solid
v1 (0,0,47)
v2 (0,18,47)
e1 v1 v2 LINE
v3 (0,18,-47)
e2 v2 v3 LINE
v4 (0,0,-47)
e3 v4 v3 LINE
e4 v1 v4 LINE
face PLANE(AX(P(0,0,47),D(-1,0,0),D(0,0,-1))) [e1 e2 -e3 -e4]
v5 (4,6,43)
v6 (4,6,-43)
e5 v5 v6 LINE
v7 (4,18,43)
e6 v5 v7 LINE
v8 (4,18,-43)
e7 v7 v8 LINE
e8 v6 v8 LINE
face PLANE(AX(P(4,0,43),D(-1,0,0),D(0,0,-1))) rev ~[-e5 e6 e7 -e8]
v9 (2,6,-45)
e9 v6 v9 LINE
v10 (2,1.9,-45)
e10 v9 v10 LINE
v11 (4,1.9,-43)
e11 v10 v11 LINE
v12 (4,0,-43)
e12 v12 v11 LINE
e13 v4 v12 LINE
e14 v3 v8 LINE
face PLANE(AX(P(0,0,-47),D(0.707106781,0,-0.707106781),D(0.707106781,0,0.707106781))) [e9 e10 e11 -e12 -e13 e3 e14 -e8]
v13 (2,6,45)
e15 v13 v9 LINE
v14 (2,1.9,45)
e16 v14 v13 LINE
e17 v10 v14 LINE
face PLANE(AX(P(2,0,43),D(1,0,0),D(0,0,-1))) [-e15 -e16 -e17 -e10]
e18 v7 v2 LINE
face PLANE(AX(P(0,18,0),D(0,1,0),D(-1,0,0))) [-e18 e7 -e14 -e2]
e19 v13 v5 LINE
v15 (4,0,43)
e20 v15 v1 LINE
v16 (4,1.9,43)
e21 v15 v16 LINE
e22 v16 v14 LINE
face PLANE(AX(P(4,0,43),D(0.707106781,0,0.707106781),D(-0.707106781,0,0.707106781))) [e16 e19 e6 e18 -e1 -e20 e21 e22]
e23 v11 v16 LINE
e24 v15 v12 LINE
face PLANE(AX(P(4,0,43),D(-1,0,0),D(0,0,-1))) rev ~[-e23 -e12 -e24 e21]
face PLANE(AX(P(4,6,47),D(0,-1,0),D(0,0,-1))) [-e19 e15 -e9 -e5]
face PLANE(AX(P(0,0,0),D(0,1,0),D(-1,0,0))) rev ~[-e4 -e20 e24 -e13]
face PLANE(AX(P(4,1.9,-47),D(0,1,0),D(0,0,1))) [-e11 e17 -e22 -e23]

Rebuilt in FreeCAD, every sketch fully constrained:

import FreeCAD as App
import Part
import Sketcher

V = App.Vector
Q = App.Units.Quantity


def add_polygon(sketch, points):
    """Adds a closed chain of lines whose ends are joined by coincident constraints."""
    first, n = sketch.GeometryCount, len(points)
    for a, b in zip(points, points[1:] + points[:1]):
        sketch.addGeometry(Part.LineSegment(App.Vector(*a, 0), App.Vector(*b, 0)), False)
    for i in range(n):
        sketch.addConstraint(Sketcher.Constraint("Coincident", first + i, 2, first + (i + 1) % n, 1))

doc = App.newDocument("Part")
params = doc.addObject("Spreadsheet::Sheet", "Params")
for row, (alias, value) in enumerate([
    ("sketch1_height", "94 mm"),
    ("sketch1_height2", "86 mm"),
    ("pad1_length", "18 mm"),
    ("sketch2_width", "4.1 mm"),
    ("sketch2_height", "94 mm"),
    ("pocket1_length", "2 mm"),
], start=1):
    params.set(f"A{row}", alias)
    params.set(f"B{row}", "=" + value)
    params.setAlias(f"B{row}", alias)

body = doc.addObject("PartDesign::Body", "Body")

# Sketch on XZ plane
sketch1 = doc.addObject("Sketcher::SketchObject", "Sketch")
body.addObject(sketch1)
sketch1.AttachmentSupport = (doc.XZ_Plane, [""])
sketch1.MapMode = "FlatFace"
add_polygon(sketch1, [(0, -47), (0, 47), (4, 43), (4, -43)])  # lines 0-3
sketch1.addConstraint([
    Sketcher.Constraint("Vertical", 0),
    Sketcher.Constraint("Vertical", 2),
    Sketcher.Constraint("Symmetric", 0, 2, 3, 2, -1, 1),
    Sketcher.Constraint("Perpendicular", 1, 3),
    Sketcher.Constraint("Equal", 1, 3),
    Sketcher.Constraint("DistanceY", 0, 1, 0, 2, Q("94 mm")),
    Sketcher.Constraint("DistanceY", 2, 2, 2, 1, Q("86 mm")),
])
sketch1.setExpression("Constraints[9]", "Params.sketch1_height")
sketch1.setExpression("Constraints[10]", "Params.sketch1_height2")
pad1 = doc.addObject("PartDesign::Pad", "Pad")
body.addObject(pad1)
pad1.Profile = sketch1
pad1.setExpression("Length", "Params.pad1_length")
pad1.Reversed = True

# Sketch on YZ plane
sketch2 = doc.addObject("Sketcher::SketchObject", "Sketch001")
body.addObject(sketch2)
sketch2.AttachmentSupport = (doc.YZ_Plane, [""])
sketch2.MapMode = "FlatFace"
sketch2.AttachmentOffset = App.Placement(V(0, 0, 4), App.Rotation())
add_polygon(sketch2, [(6, 47), (1.9, 47), (1.9, -47), (6, -47)])  # lines 0-3
sketch2.addConstraint([
    Sketcher.Constraint("Horizontal", 0),
    Sketcher.Constraint("Vertical", 1),
    Sketcher.Constraint("Horizontal", 2),
    Sketcher.Constraint("Vertical", 3),
    Sketcher.Constraint("DistanceX", 0, 2, 0, 1, Q("4.1 mm")),
    Sketcher.Constraint("DistanceX", -1, 1, 0, 2, Q("1.9 mm")),
    Sketcher.Constraint("DistanceY", 1, 2, 1, 1, Q("94 mm")),
    Sketcher.Constraint("DistanceY", -1, 1, 0, 2, Q("47 mm")),
])
sketch2.setExpression("Constraints[8]", "Params.sketch2_width")
sketch2.setExpression("Constraints[10]", "Params.sketch2_height")
pocket1 = doc.addObject("PartDesign::Pocket", "Pocket")
body.addObject(pocket1)
pocket1.Profile = sketch2
pocket1.setExpression("Length", "Params.pocket1_length")

doc.recompute()
